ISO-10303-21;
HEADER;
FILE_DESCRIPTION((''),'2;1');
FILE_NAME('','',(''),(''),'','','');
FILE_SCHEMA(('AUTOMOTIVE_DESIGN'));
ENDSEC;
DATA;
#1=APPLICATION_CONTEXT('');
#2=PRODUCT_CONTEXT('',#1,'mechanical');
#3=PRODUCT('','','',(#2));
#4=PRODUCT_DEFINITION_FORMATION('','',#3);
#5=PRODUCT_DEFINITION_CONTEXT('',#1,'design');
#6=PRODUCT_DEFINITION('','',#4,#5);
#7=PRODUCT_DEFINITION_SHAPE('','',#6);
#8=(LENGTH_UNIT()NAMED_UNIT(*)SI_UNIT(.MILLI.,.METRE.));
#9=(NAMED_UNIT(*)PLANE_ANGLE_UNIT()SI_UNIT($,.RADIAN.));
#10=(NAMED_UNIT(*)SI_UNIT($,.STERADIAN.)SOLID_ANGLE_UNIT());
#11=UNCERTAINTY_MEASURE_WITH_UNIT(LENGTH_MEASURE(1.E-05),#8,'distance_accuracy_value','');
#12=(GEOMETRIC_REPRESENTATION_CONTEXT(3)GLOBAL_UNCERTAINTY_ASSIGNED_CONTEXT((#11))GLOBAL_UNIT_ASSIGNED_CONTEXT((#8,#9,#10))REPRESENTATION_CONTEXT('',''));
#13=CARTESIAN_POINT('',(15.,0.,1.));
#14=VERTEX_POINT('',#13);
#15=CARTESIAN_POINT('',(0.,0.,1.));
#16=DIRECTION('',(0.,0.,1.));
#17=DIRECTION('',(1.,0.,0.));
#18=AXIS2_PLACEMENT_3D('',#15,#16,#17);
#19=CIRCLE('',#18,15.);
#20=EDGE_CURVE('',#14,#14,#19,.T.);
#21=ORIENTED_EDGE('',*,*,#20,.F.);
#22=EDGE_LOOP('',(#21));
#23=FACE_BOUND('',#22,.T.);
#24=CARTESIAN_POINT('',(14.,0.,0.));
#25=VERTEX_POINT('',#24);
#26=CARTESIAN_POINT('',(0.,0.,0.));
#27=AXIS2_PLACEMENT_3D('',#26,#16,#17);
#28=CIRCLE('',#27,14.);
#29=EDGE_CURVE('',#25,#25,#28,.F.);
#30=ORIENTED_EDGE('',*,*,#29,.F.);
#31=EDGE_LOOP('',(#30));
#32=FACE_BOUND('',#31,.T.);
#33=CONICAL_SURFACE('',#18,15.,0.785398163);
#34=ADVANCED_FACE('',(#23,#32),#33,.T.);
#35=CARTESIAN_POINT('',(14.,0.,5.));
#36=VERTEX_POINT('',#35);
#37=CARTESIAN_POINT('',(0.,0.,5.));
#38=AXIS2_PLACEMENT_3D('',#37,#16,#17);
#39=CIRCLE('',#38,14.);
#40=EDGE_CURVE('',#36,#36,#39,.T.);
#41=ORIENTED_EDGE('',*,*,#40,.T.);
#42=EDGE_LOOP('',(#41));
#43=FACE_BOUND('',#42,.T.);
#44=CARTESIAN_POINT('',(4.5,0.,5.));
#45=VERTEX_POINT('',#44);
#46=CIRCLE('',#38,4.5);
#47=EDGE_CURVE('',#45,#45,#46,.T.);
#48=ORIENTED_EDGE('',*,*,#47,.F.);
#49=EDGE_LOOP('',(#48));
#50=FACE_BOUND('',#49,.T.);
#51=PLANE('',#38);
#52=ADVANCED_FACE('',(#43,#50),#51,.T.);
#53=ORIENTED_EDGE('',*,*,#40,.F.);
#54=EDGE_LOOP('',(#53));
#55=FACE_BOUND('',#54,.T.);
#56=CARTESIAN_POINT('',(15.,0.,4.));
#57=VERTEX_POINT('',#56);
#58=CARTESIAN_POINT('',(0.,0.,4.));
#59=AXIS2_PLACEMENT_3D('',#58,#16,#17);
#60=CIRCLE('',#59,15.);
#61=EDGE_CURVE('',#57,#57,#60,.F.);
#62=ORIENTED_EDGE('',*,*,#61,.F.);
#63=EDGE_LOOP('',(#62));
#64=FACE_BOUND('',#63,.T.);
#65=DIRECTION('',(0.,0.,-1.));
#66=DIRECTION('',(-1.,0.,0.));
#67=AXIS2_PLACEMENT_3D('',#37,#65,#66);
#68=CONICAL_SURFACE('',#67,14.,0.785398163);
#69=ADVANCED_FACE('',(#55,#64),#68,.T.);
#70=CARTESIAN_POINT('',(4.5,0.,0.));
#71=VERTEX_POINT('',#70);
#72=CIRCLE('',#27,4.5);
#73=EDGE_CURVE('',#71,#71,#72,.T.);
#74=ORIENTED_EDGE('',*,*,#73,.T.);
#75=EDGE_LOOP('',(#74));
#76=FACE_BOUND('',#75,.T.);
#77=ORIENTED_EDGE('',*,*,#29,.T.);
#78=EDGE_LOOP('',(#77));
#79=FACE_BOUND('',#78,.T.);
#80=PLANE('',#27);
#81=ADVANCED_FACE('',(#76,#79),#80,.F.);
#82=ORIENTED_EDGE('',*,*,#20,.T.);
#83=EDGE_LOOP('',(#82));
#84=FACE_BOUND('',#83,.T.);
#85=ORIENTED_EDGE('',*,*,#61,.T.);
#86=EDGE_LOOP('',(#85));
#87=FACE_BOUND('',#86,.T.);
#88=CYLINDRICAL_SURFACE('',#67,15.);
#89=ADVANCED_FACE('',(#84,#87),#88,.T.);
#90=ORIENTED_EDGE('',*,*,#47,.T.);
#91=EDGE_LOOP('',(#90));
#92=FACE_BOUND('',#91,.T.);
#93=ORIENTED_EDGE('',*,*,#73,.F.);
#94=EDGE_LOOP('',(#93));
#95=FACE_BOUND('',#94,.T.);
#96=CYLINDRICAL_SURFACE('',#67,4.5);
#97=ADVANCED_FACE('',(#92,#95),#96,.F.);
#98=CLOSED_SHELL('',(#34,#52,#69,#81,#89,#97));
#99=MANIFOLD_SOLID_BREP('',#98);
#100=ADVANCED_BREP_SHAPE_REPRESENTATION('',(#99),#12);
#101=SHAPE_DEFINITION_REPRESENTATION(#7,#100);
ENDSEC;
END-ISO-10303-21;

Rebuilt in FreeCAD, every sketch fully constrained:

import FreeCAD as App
import Part
import Sketcher
Q = App.Units.Quantity


def edges_at(feature, points):
    """Names of the edges that pass closest to the given points."""
    edges = feature.Shape.Edges
    near = lambda p: min(range(len(edges)), key=lambda i: edges[i].distToShape(Part.Vertex(*p))[0])
    return sorted({f"Edge{near(p) + 1}" for p in points})

doc = App.newDocument("Part")
body = doc.addObject("PartDesign::Body", "Body")

# Sketch on XY plane
sketch1 = body.newObject("Sketcher::SketchObject", "Sketch")
sketch1.AttachmentSupport = (doc.getObject("XY_Plane"), [""])
sketch1.MapMode = "FlatFace"
sketch1.addGeometry([
    Part.Circle(App.Vector(0, 0, 0), App.Vector(0, 0, 1), 15),
    Part.Circle(App.Vector(0, 0, 0), App.Vector(0, 0, 1), 4.5),
], False)
sketch1.addConstraint([
    Sketcher.Constraint("Coincident", 0, 3, -1, 1),
    Sketcher.Constraint("Coincident", 1, 3, -1, 1),
    Sketcher.Constraint("Diameter", 0, Q("30 mm")),
    Sketcher.Constraint("Diameter", 1, Q("9 mm")),
])
pad1 = body.newObject("PartDesign::Pad", "Pad")
pad1.Profile = sketch1
pad1.Length = 5
doc.recompute()

chamfer = body.newObject("PartDesign::Chamfer", "Chamfer")
chamfer.Base = (pad1, edges_at(pad1, [(-15, 0, 0), (-15, 0, 5)]))
chamfer.Size = 1

doc.recompute()
